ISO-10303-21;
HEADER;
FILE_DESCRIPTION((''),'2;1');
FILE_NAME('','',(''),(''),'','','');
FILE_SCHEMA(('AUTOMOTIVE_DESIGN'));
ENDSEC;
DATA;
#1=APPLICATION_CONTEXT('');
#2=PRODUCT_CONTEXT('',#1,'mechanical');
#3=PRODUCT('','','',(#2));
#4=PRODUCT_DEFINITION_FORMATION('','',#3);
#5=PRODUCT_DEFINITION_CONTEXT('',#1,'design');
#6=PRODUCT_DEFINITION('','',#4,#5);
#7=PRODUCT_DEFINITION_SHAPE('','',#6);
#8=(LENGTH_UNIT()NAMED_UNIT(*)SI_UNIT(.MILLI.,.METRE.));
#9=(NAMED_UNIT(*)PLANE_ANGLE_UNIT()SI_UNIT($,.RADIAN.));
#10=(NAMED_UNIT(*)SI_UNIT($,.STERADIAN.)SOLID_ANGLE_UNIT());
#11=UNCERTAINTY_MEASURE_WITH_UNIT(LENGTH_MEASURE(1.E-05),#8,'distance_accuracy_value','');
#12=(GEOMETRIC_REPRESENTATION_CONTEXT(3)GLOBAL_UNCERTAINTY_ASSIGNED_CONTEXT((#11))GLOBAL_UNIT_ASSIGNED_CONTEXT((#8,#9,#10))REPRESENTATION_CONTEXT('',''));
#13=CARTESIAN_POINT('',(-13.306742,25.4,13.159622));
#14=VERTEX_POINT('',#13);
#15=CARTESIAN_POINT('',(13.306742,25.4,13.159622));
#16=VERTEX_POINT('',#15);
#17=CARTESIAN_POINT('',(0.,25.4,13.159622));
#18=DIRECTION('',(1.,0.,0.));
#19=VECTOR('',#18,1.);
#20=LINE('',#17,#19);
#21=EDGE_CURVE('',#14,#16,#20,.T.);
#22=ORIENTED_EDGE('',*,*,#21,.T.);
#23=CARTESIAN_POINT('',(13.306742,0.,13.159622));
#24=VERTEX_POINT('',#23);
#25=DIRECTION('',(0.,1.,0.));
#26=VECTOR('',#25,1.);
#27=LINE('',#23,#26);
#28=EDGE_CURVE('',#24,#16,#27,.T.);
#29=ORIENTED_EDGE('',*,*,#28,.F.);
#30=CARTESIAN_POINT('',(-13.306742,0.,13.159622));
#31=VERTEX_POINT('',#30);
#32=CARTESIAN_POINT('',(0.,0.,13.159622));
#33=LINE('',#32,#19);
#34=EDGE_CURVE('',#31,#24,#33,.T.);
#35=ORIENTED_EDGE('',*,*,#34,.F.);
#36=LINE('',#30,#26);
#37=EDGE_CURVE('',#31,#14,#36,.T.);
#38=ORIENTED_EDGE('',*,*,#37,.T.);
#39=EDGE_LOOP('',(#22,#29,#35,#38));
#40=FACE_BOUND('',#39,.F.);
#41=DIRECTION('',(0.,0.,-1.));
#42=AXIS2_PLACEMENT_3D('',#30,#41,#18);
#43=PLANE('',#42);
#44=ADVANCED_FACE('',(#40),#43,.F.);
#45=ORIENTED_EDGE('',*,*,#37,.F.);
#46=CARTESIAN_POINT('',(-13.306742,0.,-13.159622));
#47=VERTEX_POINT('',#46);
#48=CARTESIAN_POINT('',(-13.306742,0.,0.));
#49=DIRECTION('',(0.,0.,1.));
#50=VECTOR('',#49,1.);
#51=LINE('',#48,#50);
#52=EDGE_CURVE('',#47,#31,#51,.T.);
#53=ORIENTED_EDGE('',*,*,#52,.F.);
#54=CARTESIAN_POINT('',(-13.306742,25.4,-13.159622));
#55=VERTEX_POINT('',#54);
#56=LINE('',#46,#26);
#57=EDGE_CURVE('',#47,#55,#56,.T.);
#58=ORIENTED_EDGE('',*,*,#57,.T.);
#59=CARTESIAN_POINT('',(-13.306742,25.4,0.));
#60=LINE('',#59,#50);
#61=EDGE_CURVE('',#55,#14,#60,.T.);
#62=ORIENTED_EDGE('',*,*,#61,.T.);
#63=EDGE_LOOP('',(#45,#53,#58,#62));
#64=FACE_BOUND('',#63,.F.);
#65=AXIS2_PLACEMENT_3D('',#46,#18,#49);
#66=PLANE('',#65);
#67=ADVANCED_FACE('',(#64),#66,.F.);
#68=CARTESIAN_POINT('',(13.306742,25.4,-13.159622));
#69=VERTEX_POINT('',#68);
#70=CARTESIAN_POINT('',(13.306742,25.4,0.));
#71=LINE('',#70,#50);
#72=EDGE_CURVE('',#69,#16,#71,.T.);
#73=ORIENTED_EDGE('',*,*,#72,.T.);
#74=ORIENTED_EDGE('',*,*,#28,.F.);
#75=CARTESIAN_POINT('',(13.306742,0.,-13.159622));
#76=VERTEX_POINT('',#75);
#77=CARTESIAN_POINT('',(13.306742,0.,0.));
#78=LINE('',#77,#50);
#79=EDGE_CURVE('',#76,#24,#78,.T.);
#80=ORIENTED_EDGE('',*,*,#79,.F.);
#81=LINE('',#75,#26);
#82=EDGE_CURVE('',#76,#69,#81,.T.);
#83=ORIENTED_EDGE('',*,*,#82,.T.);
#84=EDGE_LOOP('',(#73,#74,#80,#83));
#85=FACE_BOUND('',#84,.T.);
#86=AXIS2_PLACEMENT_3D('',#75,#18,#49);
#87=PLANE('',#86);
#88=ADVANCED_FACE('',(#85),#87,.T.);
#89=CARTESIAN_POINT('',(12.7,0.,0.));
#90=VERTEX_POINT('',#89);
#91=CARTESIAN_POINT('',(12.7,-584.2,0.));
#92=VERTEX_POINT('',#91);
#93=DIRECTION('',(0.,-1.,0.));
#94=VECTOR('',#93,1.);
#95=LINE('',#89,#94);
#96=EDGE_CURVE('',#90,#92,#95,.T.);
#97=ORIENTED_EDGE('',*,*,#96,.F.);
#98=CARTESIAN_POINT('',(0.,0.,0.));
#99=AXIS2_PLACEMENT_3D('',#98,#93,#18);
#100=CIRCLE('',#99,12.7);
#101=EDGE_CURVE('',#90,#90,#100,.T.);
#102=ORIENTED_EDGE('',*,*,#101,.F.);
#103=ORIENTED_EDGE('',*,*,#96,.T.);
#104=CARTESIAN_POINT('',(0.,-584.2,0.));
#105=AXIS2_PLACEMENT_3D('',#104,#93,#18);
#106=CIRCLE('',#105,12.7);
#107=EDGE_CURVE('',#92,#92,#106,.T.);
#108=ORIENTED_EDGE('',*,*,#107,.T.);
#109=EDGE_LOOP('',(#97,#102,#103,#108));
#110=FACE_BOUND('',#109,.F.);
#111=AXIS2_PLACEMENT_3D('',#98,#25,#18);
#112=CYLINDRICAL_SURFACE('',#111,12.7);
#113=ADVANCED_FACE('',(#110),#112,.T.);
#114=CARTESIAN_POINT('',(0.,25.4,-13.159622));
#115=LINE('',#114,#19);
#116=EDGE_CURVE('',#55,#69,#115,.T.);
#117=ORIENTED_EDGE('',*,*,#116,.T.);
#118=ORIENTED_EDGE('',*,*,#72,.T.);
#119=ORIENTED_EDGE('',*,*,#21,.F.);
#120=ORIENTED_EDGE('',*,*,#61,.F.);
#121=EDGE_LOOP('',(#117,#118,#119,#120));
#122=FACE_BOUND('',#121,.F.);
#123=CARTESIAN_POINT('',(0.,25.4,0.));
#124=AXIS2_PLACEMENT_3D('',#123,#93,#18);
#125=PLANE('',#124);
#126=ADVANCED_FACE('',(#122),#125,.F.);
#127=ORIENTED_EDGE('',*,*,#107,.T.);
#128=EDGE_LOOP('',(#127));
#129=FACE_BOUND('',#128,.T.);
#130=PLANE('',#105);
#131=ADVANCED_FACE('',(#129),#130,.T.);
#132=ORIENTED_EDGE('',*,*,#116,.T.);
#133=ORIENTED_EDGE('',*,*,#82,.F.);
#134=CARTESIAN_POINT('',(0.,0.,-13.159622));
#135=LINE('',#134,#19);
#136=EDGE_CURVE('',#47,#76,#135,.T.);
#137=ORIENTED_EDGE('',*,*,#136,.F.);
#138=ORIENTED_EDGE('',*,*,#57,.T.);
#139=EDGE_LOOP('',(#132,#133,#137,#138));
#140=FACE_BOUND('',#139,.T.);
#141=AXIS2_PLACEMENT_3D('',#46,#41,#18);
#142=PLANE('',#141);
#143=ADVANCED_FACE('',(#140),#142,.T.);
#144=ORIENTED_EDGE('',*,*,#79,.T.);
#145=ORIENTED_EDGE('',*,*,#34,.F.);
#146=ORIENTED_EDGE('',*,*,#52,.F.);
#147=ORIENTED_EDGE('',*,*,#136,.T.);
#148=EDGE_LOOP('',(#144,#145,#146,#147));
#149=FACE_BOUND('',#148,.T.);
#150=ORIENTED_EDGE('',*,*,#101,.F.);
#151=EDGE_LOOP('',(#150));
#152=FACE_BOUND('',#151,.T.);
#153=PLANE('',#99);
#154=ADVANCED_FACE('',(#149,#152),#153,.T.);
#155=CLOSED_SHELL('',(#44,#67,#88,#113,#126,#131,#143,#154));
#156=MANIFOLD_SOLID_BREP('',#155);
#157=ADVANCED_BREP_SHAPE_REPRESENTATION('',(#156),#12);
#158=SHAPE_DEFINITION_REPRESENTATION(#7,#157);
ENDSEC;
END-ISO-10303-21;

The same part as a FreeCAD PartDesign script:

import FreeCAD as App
import Part
import Sketcher
Q = App.Units.Quantity


def add_polygon(sketch, points):
    """Adds a closed chain of lines whose ends are joined by coincident constraints."""
    first, n = sketch.GeometryCount, len(points)
    for a, b in zip(points, points[1:] + points[:1]):
        sketch.addGeometry(Part.LineSegment(App.Vector(*a, 0), App.Vector(*b, 0)), False)
    for i in range(n):
        sketch.addConstraint(Sketcher.Constraint("Coincident", first + i, 2, first + (i + 1) % n, 1))

doc = App.newDocument("Part")
body = doc.addObject("PartDesign::Body", "Body")

sketch1 = doc.addObject("Sketcher::SketchObject", "Sketch")
body.addObject(sketch1)
sketch1.AttachmentSupport = (doc.XZ_Plane, [""])
sketch1.MapMode = "FlatFace"
sketch1.addGeometry(Part.Circle(App.Vector(0, 0, 0), App.Vector(0, 0, 1), 13), False)
sketch1.addConstraint([
    Sketcher.Constraint("Coincident", 0, 3, -1, 1),
    Sketcher.Constraint("Diameter", 0, Q("1 in")),
])
pad1 = doc.addObject("PartDesign::Pad", "Pad")
body.addObject(pad1)
pad1.Profile = sketch1
pad1.Length = Q("23 in")

sketch2 = doc.addObject("Sketcher::SketchObject", "Sketch001")
body.addObject(sketch2)
sketch2.AttachmentSupport = (doc.XZ_Plane, [""])
sketch2.MapMode = "FlatFace"
add_polygon(sketch2, [(-13, 13), (-13, -13), (13, -13), (13, 13)])
sketch2.addConstraint([
    Sketcher.Constraint("Vertical", 0),
    Sketcher.Constraint("Horizontal", 1),
    Sketcher.Constraint("Vertical", 2),
    Sketcher.Constraint("Horizontal", 3),
    Sketcher.Constraint("Symmetric", 0, 2, 2, 2, -1, 1),
    Sketcher.Constraint("DistanceX", 1, 1, 1, 2, 26.613483),
    Sketcher.Constraint("DistanceY", 0, 2, 0, 1, 26.319245),
])
pad2 = doc.addObject("PartDesign::Pad", "Pad001")
body.addObject(pad2)
pad2.Profile = sketch2
pad2.Length = Q("1 in")
pad2.Reversed = True

doc.recompute()
